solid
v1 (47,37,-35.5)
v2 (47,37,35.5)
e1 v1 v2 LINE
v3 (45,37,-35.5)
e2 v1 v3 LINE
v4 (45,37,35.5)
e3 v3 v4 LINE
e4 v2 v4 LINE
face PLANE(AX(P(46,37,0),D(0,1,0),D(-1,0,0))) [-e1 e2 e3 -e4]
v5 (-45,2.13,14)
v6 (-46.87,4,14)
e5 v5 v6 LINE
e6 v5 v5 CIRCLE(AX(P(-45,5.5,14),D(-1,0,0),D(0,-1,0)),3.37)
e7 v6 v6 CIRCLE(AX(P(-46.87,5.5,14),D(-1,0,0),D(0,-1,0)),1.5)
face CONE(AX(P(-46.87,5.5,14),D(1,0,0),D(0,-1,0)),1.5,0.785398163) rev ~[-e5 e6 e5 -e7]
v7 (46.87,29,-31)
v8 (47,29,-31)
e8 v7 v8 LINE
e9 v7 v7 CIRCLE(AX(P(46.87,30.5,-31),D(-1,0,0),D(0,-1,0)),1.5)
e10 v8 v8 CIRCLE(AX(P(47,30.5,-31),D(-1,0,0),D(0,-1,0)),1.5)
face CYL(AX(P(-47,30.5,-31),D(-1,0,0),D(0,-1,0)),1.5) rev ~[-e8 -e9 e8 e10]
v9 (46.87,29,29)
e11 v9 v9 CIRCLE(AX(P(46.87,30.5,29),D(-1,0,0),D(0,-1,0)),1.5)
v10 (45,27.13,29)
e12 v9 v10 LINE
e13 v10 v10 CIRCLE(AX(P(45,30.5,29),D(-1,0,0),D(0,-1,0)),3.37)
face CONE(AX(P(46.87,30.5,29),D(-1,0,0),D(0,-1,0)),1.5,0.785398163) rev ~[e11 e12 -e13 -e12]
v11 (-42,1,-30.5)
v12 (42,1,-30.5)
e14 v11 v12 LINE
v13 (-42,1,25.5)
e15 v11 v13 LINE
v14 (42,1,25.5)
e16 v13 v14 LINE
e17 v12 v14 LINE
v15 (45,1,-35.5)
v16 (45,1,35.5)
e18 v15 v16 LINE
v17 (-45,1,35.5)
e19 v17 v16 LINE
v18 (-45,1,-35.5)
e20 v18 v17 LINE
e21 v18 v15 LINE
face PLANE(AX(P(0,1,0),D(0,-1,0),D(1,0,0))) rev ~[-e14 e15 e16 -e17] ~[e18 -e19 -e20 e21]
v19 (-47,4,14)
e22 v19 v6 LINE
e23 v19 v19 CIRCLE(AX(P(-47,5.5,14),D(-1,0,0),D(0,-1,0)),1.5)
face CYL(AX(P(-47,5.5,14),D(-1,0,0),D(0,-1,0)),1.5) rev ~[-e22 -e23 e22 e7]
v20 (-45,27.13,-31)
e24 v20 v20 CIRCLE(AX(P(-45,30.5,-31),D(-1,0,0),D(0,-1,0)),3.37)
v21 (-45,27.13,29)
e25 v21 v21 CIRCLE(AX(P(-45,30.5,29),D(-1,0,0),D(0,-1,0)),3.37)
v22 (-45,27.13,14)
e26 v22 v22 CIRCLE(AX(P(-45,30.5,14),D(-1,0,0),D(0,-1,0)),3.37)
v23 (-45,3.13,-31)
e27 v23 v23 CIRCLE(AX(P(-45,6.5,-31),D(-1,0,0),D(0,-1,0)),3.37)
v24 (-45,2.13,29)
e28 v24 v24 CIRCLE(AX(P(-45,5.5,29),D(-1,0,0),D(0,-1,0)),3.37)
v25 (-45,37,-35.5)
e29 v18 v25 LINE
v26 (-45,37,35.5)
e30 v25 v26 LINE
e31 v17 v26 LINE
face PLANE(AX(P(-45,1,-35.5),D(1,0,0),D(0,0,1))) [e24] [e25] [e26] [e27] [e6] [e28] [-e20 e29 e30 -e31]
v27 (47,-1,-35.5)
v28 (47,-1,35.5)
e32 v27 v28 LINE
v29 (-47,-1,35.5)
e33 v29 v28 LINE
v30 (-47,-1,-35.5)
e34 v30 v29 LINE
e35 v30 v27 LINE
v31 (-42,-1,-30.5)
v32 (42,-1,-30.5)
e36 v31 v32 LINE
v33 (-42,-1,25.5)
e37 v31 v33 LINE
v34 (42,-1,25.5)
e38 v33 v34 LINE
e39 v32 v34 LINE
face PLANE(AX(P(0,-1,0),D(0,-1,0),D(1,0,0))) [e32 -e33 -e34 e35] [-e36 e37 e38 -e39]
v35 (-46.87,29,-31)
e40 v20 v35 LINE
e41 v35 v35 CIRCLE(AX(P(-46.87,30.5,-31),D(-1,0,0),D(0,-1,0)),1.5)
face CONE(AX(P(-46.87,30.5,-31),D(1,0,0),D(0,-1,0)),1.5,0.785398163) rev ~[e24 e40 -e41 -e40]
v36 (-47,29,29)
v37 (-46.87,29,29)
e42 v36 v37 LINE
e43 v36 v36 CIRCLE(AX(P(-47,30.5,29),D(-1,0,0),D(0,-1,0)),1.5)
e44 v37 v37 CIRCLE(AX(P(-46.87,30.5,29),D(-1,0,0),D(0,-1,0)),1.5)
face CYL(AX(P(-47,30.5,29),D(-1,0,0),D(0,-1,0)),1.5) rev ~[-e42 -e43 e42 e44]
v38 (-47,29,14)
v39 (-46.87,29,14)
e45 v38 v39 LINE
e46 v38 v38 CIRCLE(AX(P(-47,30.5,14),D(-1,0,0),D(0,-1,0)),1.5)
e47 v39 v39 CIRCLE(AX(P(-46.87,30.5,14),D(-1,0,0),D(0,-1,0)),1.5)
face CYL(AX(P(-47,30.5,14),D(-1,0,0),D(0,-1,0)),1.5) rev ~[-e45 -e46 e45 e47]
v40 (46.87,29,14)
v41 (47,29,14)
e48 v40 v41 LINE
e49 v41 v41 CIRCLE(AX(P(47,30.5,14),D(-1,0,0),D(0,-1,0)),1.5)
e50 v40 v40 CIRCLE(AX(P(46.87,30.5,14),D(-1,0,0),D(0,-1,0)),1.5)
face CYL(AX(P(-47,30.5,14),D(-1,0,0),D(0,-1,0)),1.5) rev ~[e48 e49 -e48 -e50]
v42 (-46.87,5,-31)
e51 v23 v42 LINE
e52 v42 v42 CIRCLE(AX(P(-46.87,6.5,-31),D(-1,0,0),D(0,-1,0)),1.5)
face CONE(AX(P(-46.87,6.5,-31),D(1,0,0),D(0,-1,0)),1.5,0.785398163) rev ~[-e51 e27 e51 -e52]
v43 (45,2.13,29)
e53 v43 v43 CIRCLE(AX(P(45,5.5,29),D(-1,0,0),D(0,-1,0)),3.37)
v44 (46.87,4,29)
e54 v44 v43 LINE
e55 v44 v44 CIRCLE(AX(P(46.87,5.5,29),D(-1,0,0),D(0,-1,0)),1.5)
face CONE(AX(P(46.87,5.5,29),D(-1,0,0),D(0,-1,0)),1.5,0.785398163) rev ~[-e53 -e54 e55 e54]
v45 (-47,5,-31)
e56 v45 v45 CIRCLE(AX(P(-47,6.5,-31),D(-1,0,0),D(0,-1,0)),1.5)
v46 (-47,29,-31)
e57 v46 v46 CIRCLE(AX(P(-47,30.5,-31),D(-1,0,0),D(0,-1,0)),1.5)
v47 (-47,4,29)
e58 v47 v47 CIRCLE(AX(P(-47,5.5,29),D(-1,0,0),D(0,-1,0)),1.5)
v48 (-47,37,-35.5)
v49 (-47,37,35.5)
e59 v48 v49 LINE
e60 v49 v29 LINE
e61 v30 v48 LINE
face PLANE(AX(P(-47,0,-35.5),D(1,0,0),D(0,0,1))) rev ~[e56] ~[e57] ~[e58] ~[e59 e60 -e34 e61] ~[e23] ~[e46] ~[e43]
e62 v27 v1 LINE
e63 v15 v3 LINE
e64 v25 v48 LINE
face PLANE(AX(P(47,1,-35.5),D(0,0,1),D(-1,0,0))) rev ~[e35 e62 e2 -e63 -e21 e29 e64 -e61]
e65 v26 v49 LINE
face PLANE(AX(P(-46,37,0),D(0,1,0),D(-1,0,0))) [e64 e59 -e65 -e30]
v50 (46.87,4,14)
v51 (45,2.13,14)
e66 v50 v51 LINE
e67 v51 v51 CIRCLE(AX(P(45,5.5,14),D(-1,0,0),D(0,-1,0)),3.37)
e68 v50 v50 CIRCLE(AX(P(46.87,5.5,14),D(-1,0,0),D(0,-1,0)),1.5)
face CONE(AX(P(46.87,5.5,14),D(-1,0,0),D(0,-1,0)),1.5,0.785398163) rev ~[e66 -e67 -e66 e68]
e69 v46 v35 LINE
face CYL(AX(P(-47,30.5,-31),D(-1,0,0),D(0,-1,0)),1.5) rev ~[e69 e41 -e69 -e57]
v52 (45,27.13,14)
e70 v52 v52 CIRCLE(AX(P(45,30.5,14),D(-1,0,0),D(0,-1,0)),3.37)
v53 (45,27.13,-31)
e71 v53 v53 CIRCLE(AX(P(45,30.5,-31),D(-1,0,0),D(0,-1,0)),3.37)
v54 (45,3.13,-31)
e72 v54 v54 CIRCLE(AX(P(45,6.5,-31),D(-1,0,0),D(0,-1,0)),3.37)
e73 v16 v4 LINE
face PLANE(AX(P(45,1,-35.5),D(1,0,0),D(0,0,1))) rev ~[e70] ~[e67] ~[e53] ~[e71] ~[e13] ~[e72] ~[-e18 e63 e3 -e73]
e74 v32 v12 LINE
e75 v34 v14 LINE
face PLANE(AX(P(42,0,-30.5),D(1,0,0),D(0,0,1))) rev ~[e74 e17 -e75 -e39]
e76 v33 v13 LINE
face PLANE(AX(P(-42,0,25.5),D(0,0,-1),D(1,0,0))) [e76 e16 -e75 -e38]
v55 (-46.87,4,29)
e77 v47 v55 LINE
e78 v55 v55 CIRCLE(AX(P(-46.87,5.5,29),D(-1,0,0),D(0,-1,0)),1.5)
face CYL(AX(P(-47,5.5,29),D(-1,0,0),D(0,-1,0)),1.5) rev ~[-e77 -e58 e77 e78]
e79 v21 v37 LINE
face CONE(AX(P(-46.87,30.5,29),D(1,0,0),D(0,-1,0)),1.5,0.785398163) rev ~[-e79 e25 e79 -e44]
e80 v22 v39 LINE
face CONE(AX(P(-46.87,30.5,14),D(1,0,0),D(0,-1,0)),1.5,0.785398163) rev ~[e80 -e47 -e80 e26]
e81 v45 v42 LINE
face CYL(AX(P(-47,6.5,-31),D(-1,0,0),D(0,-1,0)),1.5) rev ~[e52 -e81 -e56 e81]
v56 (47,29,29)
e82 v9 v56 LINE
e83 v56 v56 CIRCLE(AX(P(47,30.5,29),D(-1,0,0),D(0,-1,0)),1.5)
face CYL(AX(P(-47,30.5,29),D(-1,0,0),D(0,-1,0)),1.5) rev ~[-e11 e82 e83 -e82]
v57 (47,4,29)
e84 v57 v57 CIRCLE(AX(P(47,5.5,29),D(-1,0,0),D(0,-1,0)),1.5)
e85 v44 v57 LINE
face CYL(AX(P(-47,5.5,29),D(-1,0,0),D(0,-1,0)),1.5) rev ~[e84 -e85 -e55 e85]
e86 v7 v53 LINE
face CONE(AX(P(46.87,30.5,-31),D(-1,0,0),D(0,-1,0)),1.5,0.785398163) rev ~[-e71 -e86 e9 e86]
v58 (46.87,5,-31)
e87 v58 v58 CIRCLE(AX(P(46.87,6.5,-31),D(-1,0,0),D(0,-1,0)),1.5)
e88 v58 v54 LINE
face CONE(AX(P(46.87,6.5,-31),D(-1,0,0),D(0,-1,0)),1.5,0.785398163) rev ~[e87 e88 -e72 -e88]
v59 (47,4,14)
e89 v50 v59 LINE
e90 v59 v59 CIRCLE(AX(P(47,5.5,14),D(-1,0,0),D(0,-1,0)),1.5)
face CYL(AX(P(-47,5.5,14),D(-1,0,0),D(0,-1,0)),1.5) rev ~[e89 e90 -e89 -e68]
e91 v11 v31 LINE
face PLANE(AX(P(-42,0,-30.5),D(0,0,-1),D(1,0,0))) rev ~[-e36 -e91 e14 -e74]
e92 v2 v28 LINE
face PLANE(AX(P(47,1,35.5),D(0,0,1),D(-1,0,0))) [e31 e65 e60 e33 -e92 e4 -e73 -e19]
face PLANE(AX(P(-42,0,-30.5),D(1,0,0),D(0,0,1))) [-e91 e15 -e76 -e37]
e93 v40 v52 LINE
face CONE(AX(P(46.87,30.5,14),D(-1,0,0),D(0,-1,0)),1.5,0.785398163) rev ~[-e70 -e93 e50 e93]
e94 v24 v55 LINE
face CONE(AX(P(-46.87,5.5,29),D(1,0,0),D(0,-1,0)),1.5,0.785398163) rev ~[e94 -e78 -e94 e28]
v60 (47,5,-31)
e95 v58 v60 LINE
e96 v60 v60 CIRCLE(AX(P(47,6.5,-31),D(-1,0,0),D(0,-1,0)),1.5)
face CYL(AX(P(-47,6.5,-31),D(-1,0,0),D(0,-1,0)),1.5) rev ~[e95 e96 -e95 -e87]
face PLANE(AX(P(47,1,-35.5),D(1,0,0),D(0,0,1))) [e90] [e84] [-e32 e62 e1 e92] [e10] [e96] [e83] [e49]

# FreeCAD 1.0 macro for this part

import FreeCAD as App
import Part
import Sketcher

V = App.Vector


def edges_at(feature, points):
    """Names of the edges that pass closest to the given points."""
    edges = feature.Shape.Edges
    near = lambda p: min(range(len(edges)), key=lambda i: edges[i].distToShape(Part.Vertex(*p))[0])
    return sorted({f"Edge{near(p) + 1}" for p in points})


def add_polygon(sketch, points):
    """Adds a closed chain of lines whose ends are joined by coincident constraints."""
    first, n = sketch.GeometryCount, len(points)
    for a, b in zip(points, points[1:] + points[:1]):
        sketch.addGeometry(Part.LineSegment(App.Vector(*a, 0), App.Vector(*b, 0)), False)
    for i in range(n):
        sketch.addConstraint(Sketcher.Constraint("Coincident", first + i, 2, first + (i + 1) % n, 1))

doc = App.newDocument("Part")
body = doc.addObject("PartDesign::Body", "Body")

# Sketch on XZ plane
sketch1 = body.newObject("Sketcher::SketchObject", "Sketch")
sketch1.AttachmentSupport = (doc.getObject("XZ_Plane"), [""])
sketch1.MapMode = "FlatFace"
add_polygon(sketch1, [(-47, 35.5), (-47, -35.5), (47, -35.5), (47, 35.5)])  # lines 0-3
add_polygon(sketch1, [(42, -30.5), (-42, -30.5), (-42, 25.5), (42, 25.5)])  # lines 4-7
sketch1.addConstraint([
    Sketcher.Constraint("Vertical", 0),
    Sketcher.Constraint("Horizontal", 1),
    Sketcher.Constraint("Vertical", 2),
    Sketcher.Constraint("Horizontal", 3),
    Sketcher.Constraint("Horizontal", 4),
    Sketcher.Constraint("Vertical", 5),
    Sketcher.Constraint("Horizontal", 6),
    Sketcher.Constraint("Vertical", 7),
    Sketcher.Constraint("Symmetric", 0, 2, 2, 2, -1, 1),
    Sketcher.Constraint("DistanceX", 1, 1, 1, 2, 94.0),
    Sketcher.Constraint("DistanceX", 4, 2, 4, 1, 84.0),
    Sketcher.Constraint("DistanceY", 0, 2, 0, 1, 71.0),
    Sketcher.Constraint("DistanceY", 5, 1, 5, 2, 56.0),
    Sketcher.Constraint("DistanceX", 4, 2, -1, 1, 42.0),
    Sketcher.Constraint("DistanceY", 0, 2, 4, 2, 5.0),
])
pad1 = body.newObject("PartDesign::Pad", "Pad")
pad1.Profile = sketch1
pad1.Length = 2
pad1.Midplane = True

# Sketch on XZ plane
sketch2 = body.newObject("Sketcher::SketchObject", "Sketch001")
sketch2.AttachmentSupport = (doc.getObject("XZ_Plane"), [""])
sketch2.MapMode = "FlatFace"
sketch2.AttachmentOffset = App.Placement(V(0, 0, -1), App.Rotation())
add_polygon(sketch2, [(47, 35.5), (47, -35.5), (45, -35.5), (45, 35.5)])  # lines 0-3
add_polygon(sketch2, [(-45, 35.5), (-45, -35.5), (-47, -35.5), (-47, 35.5)])  # lines 4-7
sketch2.addConstraint([
    Sketcher.Constraint("Vertical", 0),
    Sketcher.Constraint("Horizontal", 1),
    Sketcher.Constraint("Vertical", 2),
    Sketcher.Constraint("Horizontal", 3),
    Sketcher.Constraint("Vertical", 4),
    Sketcher.Constraint("Horizontal", 5),
    Sketcher.Constraint("Vertical", 6),
    Sketcher.Constraint("Horizontal", 7),
    Sketcher.Constraint("Symmetric", 2, 2, 4, 2, -1, 1),
    Sketcher.Constraint("Symmetric", 0, 2, 6, 2, -1, 1),
    Sketcher.Constraint("Horizontal", 1, 2, 4, 2),
    Sketcher.Constraint("DistanceX", 1, 2, 1, 1, 2.0),
    Sketcher.Constraint("DistanceY", 0, 2, 0, 1, 71.0),
    Sketcher.Constraint("DistanceX", -1, 1, 0, 2, 47.0),
])
pad2 = body.newObject("PartDesign::Pad", "Pad001")
pad2.Profile = sketch2
pad2.Length = 36
pad2.Reversed = True

# Sketch on YZ plane
sketch3 = body.newObject("Sketcher::SketchObject", "Sketch002")
sketch3.AttachmentSupport = (doc.getObject("YZ_Plane"), [""])
sketch3.MapMode = "FlatFace"
sketch3.AttachmentOffset = App.Placement(V(0, 0, -47), App.Rotation())
sketch3.addGeometry([
    Part.Circle(V(30.5, -31, 0), V(0, 0, 1), 1.5),  # 0
    Part.Circle(V(6.5, -31, 0), V(0, 0, 1), 1.5),  # 1
    Part.Circle(V(30.5, 29, 0), V(0, 0, 1), 1.5),  # 2
    Part.Circle(V(5.5, 29, 0), V(0, 0, 1), 1.5),  # 3
    Part.Circle(V(30.5, 14, 0), V(0, 0, 1), 1.5),  # 4
    Part.Circle(V(5.5, 14, 0), V(0, 0, 1), 1.5),  # 5
], False)
sketch3.addConstraint([
    Sketcher.Constraint("Equal", 0, 1),
    Sketcher.Constraint("Equal", 1, 2),
    Sketcher.Constraint("Equal", 2, 3),
    Sketcher.Constraint("Equal", 3, 4),
    Sketcher.Constraint("Equal", 4, 5),
    Sketcher.Constraint("Horizontal", 0, 3, 1, 3),
    Sketcher.Constraint("Horizontal", 2, 3, 3, 3),
    Sketcher.Constraint("Horizontal", 4, 3, 5, 3),
    Sketcher.Constraint("Vertical", 0, 3, 2, 3),
    Sketcher.Constraint("Vertical", 2, 3, 4, 3),
    Sketcher.Constraint("Vertical", 3, 3, 5, 3),
    Sketcher.Constraint("Diameter", 0, 3.0),
    Sketcher.Constraint("DistanceY", 0, 3, -1, 1, 31.0),
    Sketcher.Constraint("DistanceY", -1, 1, 2, 3, 29.0),
    Sketcher.Constraint("DistanceY", -1, 1, 4, 3, 14.0),
    Sketcher.Constraint("DistanceX", 1, 3, 0, 3, 24.0),
    Sketcher.Constraint("DistanceX", 3, 3, 2, 3, 25.0),
    Sketcher.Constraint("DistanceX", -1, 1, 0, 3, 30.5),
])
pocket1 = body.newObject("PartDesign::Pocket", "Pocket")
pocket1.Profile = sketch3
pocket1.Length = 100
pocket1.Reversed = True
doc.recompute()

chamfer = body.newObject("PartDesign::Chamfer", "Chamfer")
chamfer.Base = (pocket1, edges_at(pocket1, [
    (-45, 32, 29),
    (-45, 32, 14),
    (-45, 7, 29),
    (45, 7, 29),
    (45, 7, 14),
    (45, 32, 29),
    (45, 32, 14),
    (-45, 7, 14),
    (45, 8, -31),
    (45, 32, -31),
    (-45, 8, -31),
    (-45, 32, -31),
]))
chamfer.Size = 1.87

doc.recompute()
